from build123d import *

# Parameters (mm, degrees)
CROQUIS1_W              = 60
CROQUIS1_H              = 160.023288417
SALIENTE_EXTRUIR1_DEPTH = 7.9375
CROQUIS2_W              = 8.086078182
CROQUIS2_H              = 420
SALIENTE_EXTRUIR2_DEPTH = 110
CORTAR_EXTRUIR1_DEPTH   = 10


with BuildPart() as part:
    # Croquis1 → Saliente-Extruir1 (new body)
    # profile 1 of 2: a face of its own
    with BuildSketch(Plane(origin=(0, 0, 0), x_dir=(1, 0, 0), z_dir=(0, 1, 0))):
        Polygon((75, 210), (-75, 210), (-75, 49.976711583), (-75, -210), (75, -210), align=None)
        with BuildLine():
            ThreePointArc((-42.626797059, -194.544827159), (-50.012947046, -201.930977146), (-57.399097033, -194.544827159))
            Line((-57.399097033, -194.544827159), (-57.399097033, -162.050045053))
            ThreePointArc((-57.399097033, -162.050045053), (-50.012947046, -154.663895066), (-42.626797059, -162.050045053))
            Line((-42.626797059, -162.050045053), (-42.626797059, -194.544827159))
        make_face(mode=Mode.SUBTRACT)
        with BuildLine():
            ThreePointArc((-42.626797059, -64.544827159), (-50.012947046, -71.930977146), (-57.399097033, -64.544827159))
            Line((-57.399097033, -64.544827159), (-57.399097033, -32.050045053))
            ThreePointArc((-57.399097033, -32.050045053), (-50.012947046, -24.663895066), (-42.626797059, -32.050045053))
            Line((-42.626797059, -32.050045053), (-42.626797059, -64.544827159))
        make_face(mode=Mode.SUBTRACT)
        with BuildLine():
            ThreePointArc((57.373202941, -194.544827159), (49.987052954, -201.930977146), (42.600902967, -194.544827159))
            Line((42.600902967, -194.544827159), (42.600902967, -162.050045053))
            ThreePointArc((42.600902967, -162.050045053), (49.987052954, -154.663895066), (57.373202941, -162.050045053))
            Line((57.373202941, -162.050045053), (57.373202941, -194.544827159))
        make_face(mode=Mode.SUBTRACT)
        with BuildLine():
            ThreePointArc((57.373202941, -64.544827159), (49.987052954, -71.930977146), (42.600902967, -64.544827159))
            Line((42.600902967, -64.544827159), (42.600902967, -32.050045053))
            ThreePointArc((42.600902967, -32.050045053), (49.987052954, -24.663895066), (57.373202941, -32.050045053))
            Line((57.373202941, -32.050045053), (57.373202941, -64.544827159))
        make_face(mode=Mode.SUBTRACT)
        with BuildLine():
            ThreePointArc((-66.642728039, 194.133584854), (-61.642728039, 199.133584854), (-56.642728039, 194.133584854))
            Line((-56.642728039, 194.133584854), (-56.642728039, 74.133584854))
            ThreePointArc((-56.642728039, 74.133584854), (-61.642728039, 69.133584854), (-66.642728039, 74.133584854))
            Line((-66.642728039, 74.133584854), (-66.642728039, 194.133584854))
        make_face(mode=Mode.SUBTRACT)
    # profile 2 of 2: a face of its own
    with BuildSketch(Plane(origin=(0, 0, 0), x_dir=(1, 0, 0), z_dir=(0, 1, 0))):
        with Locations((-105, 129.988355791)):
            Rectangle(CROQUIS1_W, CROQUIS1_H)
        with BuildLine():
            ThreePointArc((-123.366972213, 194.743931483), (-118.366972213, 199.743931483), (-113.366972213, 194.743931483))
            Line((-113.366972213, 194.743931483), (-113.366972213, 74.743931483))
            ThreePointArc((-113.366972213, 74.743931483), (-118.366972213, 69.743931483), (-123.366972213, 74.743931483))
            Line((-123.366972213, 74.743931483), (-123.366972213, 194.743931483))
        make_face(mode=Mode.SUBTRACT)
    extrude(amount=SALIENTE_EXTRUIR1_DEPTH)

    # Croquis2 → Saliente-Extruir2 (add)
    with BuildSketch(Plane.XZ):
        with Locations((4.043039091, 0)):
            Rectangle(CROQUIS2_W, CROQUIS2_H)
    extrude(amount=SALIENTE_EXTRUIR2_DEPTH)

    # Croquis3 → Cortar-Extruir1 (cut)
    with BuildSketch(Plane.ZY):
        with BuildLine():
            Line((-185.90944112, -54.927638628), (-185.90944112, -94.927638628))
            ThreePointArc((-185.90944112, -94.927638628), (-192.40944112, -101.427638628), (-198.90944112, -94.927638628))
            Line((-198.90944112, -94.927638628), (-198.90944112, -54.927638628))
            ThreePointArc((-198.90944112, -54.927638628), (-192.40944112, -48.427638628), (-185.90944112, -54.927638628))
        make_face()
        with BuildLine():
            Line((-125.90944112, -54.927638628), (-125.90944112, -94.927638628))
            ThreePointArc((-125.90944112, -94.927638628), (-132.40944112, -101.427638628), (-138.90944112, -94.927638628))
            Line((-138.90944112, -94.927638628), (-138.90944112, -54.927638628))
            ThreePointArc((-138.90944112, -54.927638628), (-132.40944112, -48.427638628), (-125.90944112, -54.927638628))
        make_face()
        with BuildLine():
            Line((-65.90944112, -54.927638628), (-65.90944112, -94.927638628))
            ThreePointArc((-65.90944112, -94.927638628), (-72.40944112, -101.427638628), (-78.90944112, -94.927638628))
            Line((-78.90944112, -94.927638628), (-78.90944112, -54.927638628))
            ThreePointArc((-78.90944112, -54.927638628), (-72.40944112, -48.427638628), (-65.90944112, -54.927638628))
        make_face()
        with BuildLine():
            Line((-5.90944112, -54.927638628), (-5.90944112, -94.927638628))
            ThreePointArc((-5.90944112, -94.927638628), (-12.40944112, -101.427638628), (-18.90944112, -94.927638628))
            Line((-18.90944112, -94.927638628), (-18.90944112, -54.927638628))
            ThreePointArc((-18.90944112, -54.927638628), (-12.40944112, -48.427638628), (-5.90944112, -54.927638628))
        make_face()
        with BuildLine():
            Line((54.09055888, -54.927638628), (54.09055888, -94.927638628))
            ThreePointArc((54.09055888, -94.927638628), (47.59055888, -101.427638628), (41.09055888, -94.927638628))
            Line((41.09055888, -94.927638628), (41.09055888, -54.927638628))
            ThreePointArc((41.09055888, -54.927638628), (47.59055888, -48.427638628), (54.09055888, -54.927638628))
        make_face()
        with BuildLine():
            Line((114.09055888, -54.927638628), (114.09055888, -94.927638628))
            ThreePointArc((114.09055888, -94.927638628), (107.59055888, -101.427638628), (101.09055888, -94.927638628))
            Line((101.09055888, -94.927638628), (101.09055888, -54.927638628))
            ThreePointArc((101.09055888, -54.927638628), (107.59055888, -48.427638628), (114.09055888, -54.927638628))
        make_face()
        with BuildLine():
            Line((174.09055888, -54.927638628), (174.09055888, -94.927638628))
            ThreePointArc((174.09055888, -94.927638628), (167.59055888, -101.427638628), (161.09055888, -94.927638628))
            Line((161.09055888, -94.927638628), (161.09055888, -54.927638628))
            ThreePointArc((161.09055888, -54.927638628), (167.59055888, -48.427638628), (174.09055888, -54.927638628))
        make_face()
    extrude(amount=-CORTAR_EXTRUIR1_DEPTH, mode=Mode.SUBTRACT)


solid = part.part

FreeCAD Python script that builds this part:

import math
import FreeCAD as App
import Part
import Sketcher

V = App.Vector

doc = App.newDocument("Part")
body = doc.addObject("PartDesign::Body", "Body")

sketch1 = body.newObject("Sketcher::SketchObject", "Sketch")
sketch1.AttachmentSupport = (doc.getObject("XZ_Plane"), [""])
sketch1.MapMode = "FlatFace"
sketch1.addGeometry([
    Part.LineSegment(V(75, -210, 0), V(-135, -210, 0)),
    Part.LineSegment(V(-135, -210, 0), V(-135, -50, 0)),
    Part.LineSegment(V(-135, -50, 0), V(-75, -50, 0)),
    Part.LineSegment(V(-75, -50, 0), V(-75, 210, 0)),
    Part.LineSegment(V(-75, 210, 0), V(75, 210, 0)),
    Part.LineSegment(V(75, 210, 0), V(75, -210, 0)),
    Part.LineSegment(V(-43, 162, 0), V(-43, 195, 0)),
    Part.ArcOfCircle(Part.Circle(V(-50, 195, 0), V(0, 0, 1), 7), math.radians(0), math.radians(180)),
    Part.LineSegment(V(-57, 195, 0), V(-57, 162, 0)),
    Part.ArcOfCircle(Part.Circle(V(-50, 162, 0), V(0, 0, 1), 7), math.radians(180), math.radians(360)),
    Part.LineSegment(V(-43, 32, 0), V(-43, 65, 0)),
    Part.ArcOfCircle(Part.Circle(V(-50, 65, 0), V(0, 0, 1), 7), math.radians(0), math.radians(180)),
    Part.LineSegment(V(-57, 65, 0), V(-57, 32, 0)),
    Part.ArcOfCircle(Part.Circle(V(-50, 32, 0), V(0, 0, 1), 7), math.radians(180), math.radians(360)),
    Part.LineSegment(V(57, 162, 0), V(57, 195, 0)),
    Part.ArcOfCircle(Part.Circle(V(50, 195, 0), V(0, 0, 1), 7), math.radians(0), math.radians(180)),
    Part.LineSegment(V(43, 195, 0), V(43, 162, 0)),
    Part.ArcOfCircle(Part.Circle(V(50, 162, 0), V(0, 0, 1), 7), math.radians(180), math.radians(360)),
    Part.LineSegment(V(57, 32, 0), V(57, 65, 0)),
    Part.ArcOfCircle(Part.Circle(V(50, 65, 0), V(0, 0, 1), 7), math.radians(0), math.radians(180)),
    Part.LineSegment(V(43, 65, 0), V(43, 32, 0)),
    Part.ArcOfCircle(Part.Circle(V(50, 32, 0), V(0, 0, 1), 7), math.radians(180), math.radians(360)),
    Part.LineSegment(V(-67, -74, 0), V(-67, -194, 0)),
    Part.ArcOfCircle(Part.Circle(V(-62, -194, 0), V(0, 0, 1), 5), math.radians(180), math.radians(360)),
    Part.LineSegment(V(-57, -194, 0), V(-57, -74, 0)),
    Part.ArcOfCircle(Part.Circle(V(-62, -74, 0), V(0, 0, 1), 5), math.radians(0), math.radians(180)),
    Part.ArcOfCircle(Part.Circle(V(-118, -195, 0), V(0, 0, 1), 5), math.radians(180), math.radians(360)),
    Part.LineSegment(V(-113, -195, 0), V(-113, -75, 0)),
    Part.ArcOfCircle(Part.Circle(V(-118, -75, 0), V(0, 0, 1), 5), math.radians(0), math.radians(180)),
    Part.LineSegment(V(-123, -75, 0), V(-123, -195, 0)),
], False)
sketch1.addConstraint([
    Sketcher.Constraint("Coincident", 0, 2, 1, 1),
    Sketcher.Constraint("Coincident", 1, 2, 2, 1),
    Sketcher.Constraint("Coincident", 2, 2, 3, 1),
    Sketcher.Constraint("Coincident", 3, 2, 4, 1),
    Sketcher.Constraint("Coincident", 4, 2, 5, 1),
    Sketcher.Constraint("Coincident", 5, 2, 0, 1),
    Sketcher.Constraint("Tangent", 6, 2, 7, 1),
    Sketcher.Constraint("Tangent", 7, 2, 8, 1),
    Sketcher.Constraint("Tangent", 8, 2, 9, 1),
    Sketcher.Constraint("Tangent", 9, 2, 6, 1),
    Sketcher.Constraint("Tangent", 10, 2, 11, 1),
    Sketcher.Constraint("Tangent", 11, 2, 12, 1),
    Sketcher.Constraint("Tangent", 12, 2, 13, 1),
    Sketcher.Constraint("Tangent", 13, 2, 10, 1),
    Sketcher.Constraint("Tangent", 14, 2, 15, 1),
    Sketcher.Constraint("Tangent", 15, 2, 16, 1),
    Sketcher.Constraint("Tangent", 16, 2, 17, 1),
    Sketcher.Constraint("Tangent", 17, 2, 14, 1),
    Sketcher.Constraint("Tangent", 18, 2, 19, 1),
    Sketcher.Constraint("Tangent", 19, 2, 20, 1),
    Sketcher.Constraint("Tangent", 20, 2, 21, 1),
    Sketcher.Constraint("Tangent", 21, 2, 18, 1),
    Sketcher.Constraint("Tangent", 22, 2, 23, 1),
    Sketcher.Constraint("Tangent", 23, 2, 24, 1),
    Sketcher.Constraint("Tangent", 24, 2, 25, 1),
    Sketcher.Constraint("Tangent", 25, 2, 22, 1),
    Sketcher.Constraint("Tangent", 26, 2, 27, 1),
    Sketcher.Constraint("Tangent", 27, 2, 28, 1),
    Sketcher.Constraint("Tangent", 28, 2, 29, 1),
    Sketcher.Constraint("Tangent", 29, 2, 26, 1),
    Sketcher.Constraint("Horizontal", 0),
    Sketcher.Constraint("Vertical", 1),
    Sketcher.Constraint("Horizontal", 2),
    Sketcher.Constraint("Vertical", 3),
    Sketcher.Constraint("Horizontal", 4),
    Sketcher.Constraint("Vertical", 5),
    Sketcher.Constraint("Vertical", 6),
    Sketcher.Constraint("Vertical", 8),
    Sketcher.Constraint("Vertical", 10),
    Sketcher.Constraint("Vertical", 12),
    Sketcher.Constraint("Vertical", 14),
    Sketcher.Constraint("Vertical", 16),
    Sketcher.Constraint("Vertical", 18),
    Sketcher.Constraint("Vertical", 20),
    Sketcher.Constraint("Vertical", 22),
    Sketcher.Constraint("Vertical", 24),
    Sketcher.Constraint("Vertical", 27),
    Sketcher.Constraint("Vertical", 29),
    Sketcher.Constraint("Equal", 9, 11),
    Sketcher.Constraint("Equal", 13, 15),
    Sketcher.Constraint("Equal", 17, 19),
    Sketcher.Constraint("Equal", 25, 26),
    Sketcher.Constraint("Symmetric", 3, 2, 5, 2, -1, 1),
    Sketcher.Constraint("Horizontal", 7, 3, 15, 3),
    Sketcher.Constraint("Horizontal", 9, 3, 17, 3),
    Sketcher.Constraint("Horizontal", 11, 3, 19, 3),
    Sketcher.Constraint("Horizontal", 13, 3, 21, 3),
    Sketcher.Constraint("Vertical", 9, 3, 11, 3),
    Sketcher.Constraint("Vertical", 17, 3, 19, 3),
    Sketcher.Constraint("Equal", 8, 10),
    Sketcher.Constraint("Equal", 24, 27),
    Sketcher.Constraint("Radius", 23, 5.0),
    Sketcher.Constraint("DistanceX", 0, 2, 0, 1, 210.0),
    Sketcher.Constraint("DistanceX", 2, 1, 2, 2, 60.0),
    Sketcher.Constraint("DistanceY", 5, 2, 5, 1, 420.0),
    Sketcher.Constraint("DistanceY", 22, 2, 22, 1, 120.0),
    Sketcher.Constraint("DistanceY", 11, 3, 7, 3, 130.0),
    Sketcher.Constraint("DistanceX", 7, 3, 15, 3, 100.0),
    Sketcher.Constraint("Radius", 7, 7.38615),
    Sketcher.Constraint("DistanceY", 1, 1, 1, 2, 160.023288),
    Sketcher.Constraint("DistanceY", 6, 1, 6, 2, 32.494782),
    Sketcher.Constraint("DistanceX", 23, 3, -1, 1, 61.642728),
    Sketcher.Constraint("DistanceY", 26, 3, -1, 1, 194.743931),
    Sketcher.Constraint("DistanceX", 23, 3, 13, 3, 11.629781),
    Sketcher.Constraint("DistanceY", 23, 3, 13, 3, 226.18363),
    Sketcher.Constraint("DistanceY", 26, 3, 11, 3, 259.288759),
    Sketcher.Constraint("DistanceX", 26, 3, -1, 1, 118.366972),
])
pad1 = body.newObject("PartDesign::Pad", "Pad")
pad1.Profile = sketch1
pad1.Length = 7.9375
pad1.Reversed = True

sketch2 = body.newObject("Sketcher::SketchObject", "Sketch001")
sketch2.AttachmentSupport = (doc.getObject("XZ_Plane"), [""])
sketch2.MapMode = "FlatFace"
sketch2.addGeometry([
    Part.LineSegment(V(0, 210, 0), V(0, -210, 0)),
    Part.LineSegment(V(0, -210, 0), V(8, -210, 0)),
    Part.LineSegment(V(8, -210, 0), V(8, 210, 0)),
    Part.LineSegment(V(8, 210, 0), V(0, 210, 0)),
], False)
sketch2.addConstraint([
    Sketcher.Constraint("Coincident", 0, 2, 1, 1),
    Sketcher.Constraint("Coincident", 1, 2, 2, 1),
    Sketcher.Constraint("Coincident", 2, 2, 3, 1),
    Sketcher.Constraint("Coincident", 3, 2, 0, 1),
    Sketcher.Constraint("Vertical", 0),
    Sketcher.Constraint("Horizontal", 1),
    Sketcher.Constraint("Vertical", 2),
    Sketcher.Constraint("Horizontal", 3),
    Sketcher.Constraint("Symmetric", 0, 2, 3, 2, -1, 1),
    Sketcher.Constraint("DistanceY", 0, 2, 0, 1, 420.0),
    Sketcher.Constraint("DistanceX", 1, 1, 1, 2, 8.086078),
])
pad2 = body.newObject("PartDesign::Pad", "Pad001")
pad2.Profile = sketch2
pad2.Length = 110

sketch3 = body.newObject("Sketcher::SketchObject", "Sketch002")
sketch3.AttachmentSupport = (doc.getObject("YZ_Plane"), [""])
sketch3.MapMode = "FlatFace"
sketch3.addGeometry([
    Part.LineSegment(V(-95, -186, 0), V(-55, -186, 0)),
    Part.ArcOfCircle(Part.Circle(V(-55, -192, 0), V(0, 0, 1), 6), math.radians(-90), math.radians(90)),
    Part.LineSegment(V(-55, -199, 0), V(-95, -199, 0)),
    Part.ArcOfCircle(Part.Circle(V(-95, -192, 0), V(0, 0, 1), 6), math.radians(90), math.radians(270)),
    Part.LineSegment(V(-95, -126, 0), V(-55, -126, 0)),
    Part.ArcOfCircle(Part.Circle(V(-55, -132, 0), V(0, 0, 1), 6), math.radians(-90), math.radians(90)),
    Part.LineSegment(V(-55, -139, 0), V(-95, -139, 0)),
    Part.ArcOfCircle(Part.Circle(V(-95, -132, 0), V(0, 0, 1), 6), math.radians(90), math.radians(270)),
    Part.LineSegment(V(-95, -66, 0), V(-55, -66, 0)),
    Part.ArcOfCircle(Part.Circle(V(-55, -72, 0), V(0, 0, 1), 6), math.radians(-90), math.radians(90)),
    Part.LineSegment(V(-55, -79, 0), V(-95, -79, 0)),
    Part.ArcOfCircle(Part.Circle(V(-95, -72, 0), V(0, 0, 1), 6), math.radians(90), math.radians(270)),
    Part.LineSegment(V(-95, -6, 0), V(-55, -6, 0)),
    Part.ArcOfCircle(Part.Circle(V(-55, -12, 0), V(0, 0, 1), 6), math.radians(-90), math.radians(90)),
    Part.LineSegment(V(-55, -19, 0), V(-95, -19, 0)),
    Part.ArcOfCircle(Part.Circle(V(-95, -12, 0), V(0, 0, 1), 6), math.radians(90), math.radians(270)),
    Part.LineSegment(V(-95, 54, 0), V(-55, 54, 0)),
    Part.ArcOfCircle(Part.Circle(V(-55, 48, 0), V(0, 0, 1), 6), math.radians(-90), math.radians(90)),
    Part.LineSegment(V(-55, 41, 0), V(-95, 41, 0)),
    Part.ArcOfCircle(Part.Circle(V(-95, 48, 0), V(0, 0, 1), 6), math.radians(90), math.radians(270)),
    Part.LineSegment(V(-95, 114, 0), V(-55, 114, 0)),
    Part.ArcOfCircle(Part.Circle(V(-55, 108, 0), V(0, 0, 1), 6), math.radians(-90), math.radians(90)),
    Part.LineSegment(V(-55, 101, 0), V(-95, 101, 0)),
    Part.ArcOfCircle(Part.Circle(V(-95, 108, 0), V(0, 0, 1), 6), math.radians(90), math.radians(270)),
    Part.LineSegment(V(-95, 174, 0), V(-55, 174, 0)),
    Part.ArcOfCircle(Part.Circle(V(-55, 168, 0), V(0, 0, 1), 6), math.radians(-90), math.radians(90)),
    Part.LineSegment(V(-55, 161, 0), V(-95, 161, 0)),
    Part.ArcOfCircle(Part.Circle(V(-95, 168, 0), V(0, 0, 1), 6), math.radians(90), math.radians(270)),
], False)
sketch3.addConstraint([
    Sketcher.Constraint("Tangent", 0, 2, 1, 2),
    Sketcher.Constraint("Tangent", 1, 1, 2, 1),
    Sketcher.Constraint("Tangent", 2, 2, 3, 2),
    Sketcher.Constraint("Tangent", 3, 1, 0, 1),
    Sketcher.Constraint("Tangent", 4, 2, 5, 2),
    Sketcher.Constraint("Tangent", 5, 1, 6, 1),
    Sketcher.Constraint("Tangent", 6, 2, 7, 2),
    Sketcher.Constraint("Tangent", 7, 1, 4, 1),
    Sketcher.Constraint("Tangent", 8, 2, 9, 2),
    Sketcher.Constraint("Tangent", 9, 1, 10, 1),
    Sketcher.Constraint("Tangent", 10, 2, 11, 2),
    Sketcher.Constraint("Tangent", 11, 1, 8, 1),
    Sketcher.Constraint("Tangent", 12, 2, 13, 2),
    Sketcher.Constraint("Tangent", 13, 1, 14, 1),
    Sketcher.Constraint("Tangent", 14, 2, 15, 2),
    Sketcher.Constraint("Tangent", 15, 1, 12, 1),
    Sketcher.Constraint("Tangent", 16, 2, 17, 2),
    Sketcher.Constraint("Tangent", 17, 1, 18, 1),
    Sketcher.Constraint("Tangent", 18, 2, 19, 2),
    Sketcher.Constraint("Tangent", 19, 1, 16, 1),
    Sketcher.Constraint("Tangent", 20, 2, 21, 2),
    Sketcher.Constraint("Tangent", 21, 1, 22, 1),
    Sketcher.Constraint("Tangent", 22, 2, 23, 2),
    Sketcher.Constraint("Tangent", 23, 1, 20, 1),
    Sketcher.Constraint("Tangent", 24, 2, 25, 2),
    Sketcher.Constraint("Tangent", 25, 1, 26, 1),
    Sketcher.Constraint("Tangent", 26, 2, 27, 2),
    Sketcher.Constraint("Tangent", 27, 1, 24, 1),
    Sketcher.Constraint("Horizontal", 0),
    Sketcher.Constraint("Horizontal", 2),
    Sketcher.Constraint("Horizontal", 4),
    Sketcher.Constraint("Horizontal", 6),
    Sketcher.Constraint("Horizontal", 8),
    Sketcher.Constraint("Horizontal", 10),
    Sketcher.Constraint("Horizontal", 12),
    Sketcher.Constraint("Horizontal", 14),
    Sketcher.Constraint("Horizontal", 16),
    Sketcher.Constraint("Horizontal", 18),
    Sketcher.Constraint("Horizontal", 20),
    Sketcher.Constraint("Horizontal", 22),
    Sketcher.Constraint("Horizontal", 24),
    Sketcher.Constraint("Horizontal", 26),
    Sketcher.Constraint("Equal", 3, 5),
    Sketcher.Constraint("Equal", 7, 9),
    Sketcher.Constraint("Equal", 11, 13),
    Sketcher.Constraint("Equal", 15, 17),
    Sketcher.Constraint("Equal", 19, 21),
    Sketcher.Constraint("Equal", 23, 25),
    Sketcher.Constraint("Vertical", 1, 3, 5, 3),
    Sketcher.Constraint("Vertical", 3, 3, 7, 3),
    Sketcher.Constraint("Vertical", 5, 3, 9, 3),
    Sketcher.Constraint("Vertical", 7, 3, 11, 3),
    Sketcher.Constraint("Vertical", 9, 3, 13, 3),
    Sketcher.Constraint("Vertical", 11, 3, 15, 3),
    Sketcher.Constraint("Vertical", 13, 3, 17, 3),
    Sketcher.Constraint("Vertical", 15, 3, 19, 3),
    Sketcher.Constraint("Vertical", 17, 3, 21, 3),
    Sketcher.Constraint("Vertical", 19, 3, 23, 3),
    Sketcher.Constraint("Vertical", 21, 3, 25, 3),
    Sketcher.Constraint("Vertical", 23, 3, 27, 3),
    Sketcher.Constraint("Radius", 1, 6.5),
    Sketcher.Constraint("DistanceX", 0, 1, 0, 2, 40.0),
    Sketcher.Constraint("DistanceY", 1, 3, 5, 3, 60.0),
    Sketcher.Constraint("DistanceY", 5, 3, 9, 3, 60.0),
    Sketcher.Constraint("DistanceY", 9, 3, 13, 3, 60.0),
    Sketcher.Constraint("DistanceY", 13, 3, 17, 3, 60.0),
    Sketcher.Constraint("DistanceY", 17, 3, 21, 3, 60.0),
    Sketcher.Constraint("DistanceY", 21, 3, 25, 3, 60.0),
    Sketcher.Constraint("DistanceX", 1, 3, -1, 1, 54.927639),
    Sketcher.Constraint("DistanceY", 1, 3, -1, 1, 192.409441),
])
pocket1 = body.newObject("PartDesign::Pocket", "Pocket")
pocket1.Profile = sketch3
pocket1.Length = 10
pocket1.Reversed = True

doc.recompute()
